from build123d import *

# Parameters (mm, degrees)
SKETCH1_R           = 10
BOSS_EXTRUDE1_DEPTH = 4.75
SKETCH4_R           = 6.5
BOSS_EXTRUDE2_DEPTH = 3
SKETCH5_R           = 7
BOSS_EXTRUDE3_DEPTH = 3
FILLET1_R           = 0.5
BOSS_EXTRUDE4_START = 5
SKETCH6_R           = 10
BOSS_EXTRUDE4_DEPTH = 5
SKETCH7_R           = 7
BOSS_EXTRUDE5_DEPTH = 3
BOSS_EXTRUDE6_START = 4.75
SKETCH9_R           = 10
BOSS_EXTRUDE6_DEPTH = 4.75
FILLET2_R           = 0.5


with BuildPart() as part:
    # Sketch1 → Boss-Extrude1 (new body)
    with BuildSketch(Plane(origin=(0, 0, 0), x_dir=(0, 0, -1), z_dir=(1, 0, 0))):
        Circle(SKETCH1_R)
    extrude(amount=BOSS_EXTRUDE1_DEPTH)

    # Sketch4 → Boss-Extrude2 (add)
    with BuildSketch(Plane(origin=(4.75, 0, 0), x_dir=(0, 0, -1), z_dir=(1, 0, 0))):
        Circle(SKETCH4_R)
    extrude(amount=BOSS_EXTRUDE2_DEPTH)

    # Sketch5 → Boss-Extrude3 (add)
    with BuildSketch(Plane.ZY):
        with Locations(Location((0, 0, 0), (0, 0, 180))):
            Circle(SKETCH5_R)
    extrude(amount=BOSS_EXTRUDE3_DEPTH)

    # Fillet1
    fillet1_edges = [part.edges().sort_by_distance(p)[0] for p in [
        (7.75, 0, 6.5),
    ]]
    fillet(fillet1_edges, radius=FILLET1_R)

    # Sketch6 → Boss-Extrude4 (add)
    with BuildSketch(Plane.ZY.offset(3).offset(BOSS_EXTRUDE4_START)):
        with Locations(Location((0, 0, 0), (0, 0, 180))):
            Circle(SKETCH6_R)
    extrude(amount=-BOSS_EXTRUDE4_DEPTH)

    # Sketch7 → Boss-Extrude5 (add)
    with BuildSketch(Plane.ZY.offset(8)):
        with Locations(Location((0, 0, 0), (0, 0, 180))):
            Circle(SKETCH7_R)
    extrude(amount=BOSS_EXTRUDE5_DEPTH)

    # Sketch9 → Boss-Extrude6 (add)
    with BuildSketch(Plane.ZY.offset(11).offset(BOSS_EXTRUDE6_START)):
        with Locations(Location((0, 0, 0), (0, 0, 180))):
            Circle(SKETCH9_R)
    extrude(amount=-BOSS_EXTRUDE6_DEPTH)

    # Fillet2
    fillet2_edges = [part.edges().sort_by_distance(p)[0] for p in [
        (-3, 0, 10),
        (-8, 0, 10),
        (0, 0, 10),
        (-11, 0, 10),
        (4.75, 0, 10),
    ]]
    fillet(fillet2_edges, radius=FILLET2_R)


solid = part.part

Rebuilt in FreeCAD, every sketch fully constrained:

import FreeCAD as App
import Part
import Sketcher


def edges_at(feature, points):
    """Names of the edges that pass closest to the given points."""
    edges = feature.Shape.Edges
    near = lambda p: min(range(len(edges)), key=lambda i: edges[i].distToShape(Part.Vertex(*p))[0])
    return sorted({f"Edge{near(p) + 1}" for p in points})

doc = App.newDocument("Part")
body = doc.addObject("PartDesign::Body", "Body")

sketch1 = doc.addObject("Sketcher::SketchObject", "Sketch")
body.addObject(sketch1)
sketch1.AttachmentSupport = (doc.YZ_Plane, [""])
sketch1.MapMode = "FlatFace"
sketch1.addGeometry(Part.Circle(App.Vector(0, 0, 0), App.Vector(0, 0, 1), 10), False)
sketch1.addConstraint([
    Sketcher.Constraint("Coincident", 0, 3, -1, 1),
    Sketcher.Constraint("Diameter", 0, 20.0),
])
pad1 = doc.addObject("PartDesign::Pad", "Pad")
body.addObject(pad1)
pad1.Profile = sketch1
pad1.Length = 4.75

sketch2 = doc.addObject("Sketcher::SketchObject", "Sketch001")
body.addObject(sketch2)
sketch2.AttachmentSupport = (doc.YZ_Plane, [""])
sketch2.MapMode = "FlatFace"
sketch2.AttachmentOffset = App.Placement(App.Vector(0, 0, 4.75), App.Rotation())
sketch2.addGeometry(Part.Circle(App.Vector(0, 0, 0), App.Vector(0, 0, 1), 6.5), False)
sketch2.addConstraint([
    Sketcher.Constraint("Coincident", 0, 3, -1, 1),
    Sketcher.Constraint("Diameter", 0, 13.0),
])
pad2 = doc.addObject("PartDesign::Pad", "Pad001")
body.addObject(pad2)
pad2.Profile = sketch2
pad2.Length = 3

sketch3 = doc.addObject("Sketcher::SketchObject", "Sketch002")
body.addObject(sketch3)
sketch3.AttachmentSupport = (doc.YZ_Plane, [""])
sketch3.MapMode = "FlatFace"
sketch3.addGeometry(Part.Circle(App.Vector(0, 0, 0), App.Vector(0, 0, 1), 7), False)
sketch3.addConstraint([
    Sketcher.Constraint("Coincident", 0, 3, -1, 1),
    Sketcher.Constraint("Diameter", 0, 14.0),
])
pad3 = doc.addObject("PartDesign::Pad", "Pad002")
body.addObject(pad3)
pad3.Profile = sketch3
pad3.Length = 3
pad3.Reversed = True
doc.recompute()

fillet = doc.addObject("PartDesign::Fillet", "Fillet")
body.addObject(fillet)
fillet.Base = (pad3, edges_at(pad3, [(7.75, 0, 6.5)]))
fillet.Radius = 0.5

sketch4 = doc.addObject("Sketcher::SketchObject", "Sketch003")
body.addObject(sketch4)
sketch4.AttachmentSupport = (doc.YZ_Plane, [""])
sketch4.MapMode = "FlatFace"
sketch4.AttachmentOffset = App.Placement(App.Vector(0, 0, -8), App.Rotation())
sketch4.addGeometry(Part.Circle(App.Vector(0, 0, 0), App.Vector(0, 0, 1), 10), False)
sketch4.addConstraint([
    Sketcher.Constraint("Coincident", 0, 3, -1, 1),
    Sketcher.Constraint("Diameter", 0, 20.0),
])
pad4 = doc.addObject("PartDesign::Pad", "Pad003")
body.addObject(pad4)
pad4.Profile = sketch4
pad4.Length = 5

sketch5 = doc.addObject("Sketcher::SketchObject", "Sketch004")
body.addObject(sketch5)
sketch5.AttachmentSupport = (doc.YZ_Plane, [""])
sketch5.MapMode = "FlatFace"
sketch5.AttachmentOffset = App.Placement(App.Vector(0, 0, -8), App.Rotation())
sketch5.addGeometry(Part.Circle(App.Vector(0, 0, 0), App.Vector(0, 0, 1), 7), False)
sketch5.addConstraint([
    Sketcher.Constraint("Coincident", 0, 3, -1, 1),
    Sketcher.Constraint("Diameter", 0, 14.0),
])
pad5 = doc.addObject("PartDesign::Pad", "Pad004")
body.addObject(pad5)
pad5.Profile = sketch5
pad5.Length = 3
pad5.Reversed = True

sketch6 = doc.addObject("Sketcher::SketchObject", "Sketch005")
body.addObject(sketch6)
sketch6.AttachmentSupport = (doc.YZ_Plane, [""])
sketch6.MapMode = "FlatFace"
sketch6.AttachmentOffset = App.Placement(App.Vector(0, 0, -15.75), App.Rotation())
sketch6.addGeometry(Part.Circle(App.Vector(0, 0, 0), App.Vector(0, 0, 1), 10), False)
sketch6.addConstraint([
    Sketcher.Constraint("Coincident", 0, 3, -1, 1),
    Sketcher.Constraint("Diameter", 0, 20.0),
])
pad6 = doc.addObject("PartDesign::Pad", "Pad005")
body.addObject(pad6)
pad6.Profile = sketch6
pad6.Length = 4.75
doc.recompute()

fillet2 = doc.addObject("PartDesign::Fillet", "Fillet001")
body.addObject(fillet2)
fillet2.Base = (pad6, edges_at(pad6, [
    (-3, 0, 10),
    (-8, 0, 10),
    (0, 0, 10),
    (-11, 0, 10),
    (4.75, 0, 10),
]))
fillet2.Radius = 0.5

doc.recompute()
